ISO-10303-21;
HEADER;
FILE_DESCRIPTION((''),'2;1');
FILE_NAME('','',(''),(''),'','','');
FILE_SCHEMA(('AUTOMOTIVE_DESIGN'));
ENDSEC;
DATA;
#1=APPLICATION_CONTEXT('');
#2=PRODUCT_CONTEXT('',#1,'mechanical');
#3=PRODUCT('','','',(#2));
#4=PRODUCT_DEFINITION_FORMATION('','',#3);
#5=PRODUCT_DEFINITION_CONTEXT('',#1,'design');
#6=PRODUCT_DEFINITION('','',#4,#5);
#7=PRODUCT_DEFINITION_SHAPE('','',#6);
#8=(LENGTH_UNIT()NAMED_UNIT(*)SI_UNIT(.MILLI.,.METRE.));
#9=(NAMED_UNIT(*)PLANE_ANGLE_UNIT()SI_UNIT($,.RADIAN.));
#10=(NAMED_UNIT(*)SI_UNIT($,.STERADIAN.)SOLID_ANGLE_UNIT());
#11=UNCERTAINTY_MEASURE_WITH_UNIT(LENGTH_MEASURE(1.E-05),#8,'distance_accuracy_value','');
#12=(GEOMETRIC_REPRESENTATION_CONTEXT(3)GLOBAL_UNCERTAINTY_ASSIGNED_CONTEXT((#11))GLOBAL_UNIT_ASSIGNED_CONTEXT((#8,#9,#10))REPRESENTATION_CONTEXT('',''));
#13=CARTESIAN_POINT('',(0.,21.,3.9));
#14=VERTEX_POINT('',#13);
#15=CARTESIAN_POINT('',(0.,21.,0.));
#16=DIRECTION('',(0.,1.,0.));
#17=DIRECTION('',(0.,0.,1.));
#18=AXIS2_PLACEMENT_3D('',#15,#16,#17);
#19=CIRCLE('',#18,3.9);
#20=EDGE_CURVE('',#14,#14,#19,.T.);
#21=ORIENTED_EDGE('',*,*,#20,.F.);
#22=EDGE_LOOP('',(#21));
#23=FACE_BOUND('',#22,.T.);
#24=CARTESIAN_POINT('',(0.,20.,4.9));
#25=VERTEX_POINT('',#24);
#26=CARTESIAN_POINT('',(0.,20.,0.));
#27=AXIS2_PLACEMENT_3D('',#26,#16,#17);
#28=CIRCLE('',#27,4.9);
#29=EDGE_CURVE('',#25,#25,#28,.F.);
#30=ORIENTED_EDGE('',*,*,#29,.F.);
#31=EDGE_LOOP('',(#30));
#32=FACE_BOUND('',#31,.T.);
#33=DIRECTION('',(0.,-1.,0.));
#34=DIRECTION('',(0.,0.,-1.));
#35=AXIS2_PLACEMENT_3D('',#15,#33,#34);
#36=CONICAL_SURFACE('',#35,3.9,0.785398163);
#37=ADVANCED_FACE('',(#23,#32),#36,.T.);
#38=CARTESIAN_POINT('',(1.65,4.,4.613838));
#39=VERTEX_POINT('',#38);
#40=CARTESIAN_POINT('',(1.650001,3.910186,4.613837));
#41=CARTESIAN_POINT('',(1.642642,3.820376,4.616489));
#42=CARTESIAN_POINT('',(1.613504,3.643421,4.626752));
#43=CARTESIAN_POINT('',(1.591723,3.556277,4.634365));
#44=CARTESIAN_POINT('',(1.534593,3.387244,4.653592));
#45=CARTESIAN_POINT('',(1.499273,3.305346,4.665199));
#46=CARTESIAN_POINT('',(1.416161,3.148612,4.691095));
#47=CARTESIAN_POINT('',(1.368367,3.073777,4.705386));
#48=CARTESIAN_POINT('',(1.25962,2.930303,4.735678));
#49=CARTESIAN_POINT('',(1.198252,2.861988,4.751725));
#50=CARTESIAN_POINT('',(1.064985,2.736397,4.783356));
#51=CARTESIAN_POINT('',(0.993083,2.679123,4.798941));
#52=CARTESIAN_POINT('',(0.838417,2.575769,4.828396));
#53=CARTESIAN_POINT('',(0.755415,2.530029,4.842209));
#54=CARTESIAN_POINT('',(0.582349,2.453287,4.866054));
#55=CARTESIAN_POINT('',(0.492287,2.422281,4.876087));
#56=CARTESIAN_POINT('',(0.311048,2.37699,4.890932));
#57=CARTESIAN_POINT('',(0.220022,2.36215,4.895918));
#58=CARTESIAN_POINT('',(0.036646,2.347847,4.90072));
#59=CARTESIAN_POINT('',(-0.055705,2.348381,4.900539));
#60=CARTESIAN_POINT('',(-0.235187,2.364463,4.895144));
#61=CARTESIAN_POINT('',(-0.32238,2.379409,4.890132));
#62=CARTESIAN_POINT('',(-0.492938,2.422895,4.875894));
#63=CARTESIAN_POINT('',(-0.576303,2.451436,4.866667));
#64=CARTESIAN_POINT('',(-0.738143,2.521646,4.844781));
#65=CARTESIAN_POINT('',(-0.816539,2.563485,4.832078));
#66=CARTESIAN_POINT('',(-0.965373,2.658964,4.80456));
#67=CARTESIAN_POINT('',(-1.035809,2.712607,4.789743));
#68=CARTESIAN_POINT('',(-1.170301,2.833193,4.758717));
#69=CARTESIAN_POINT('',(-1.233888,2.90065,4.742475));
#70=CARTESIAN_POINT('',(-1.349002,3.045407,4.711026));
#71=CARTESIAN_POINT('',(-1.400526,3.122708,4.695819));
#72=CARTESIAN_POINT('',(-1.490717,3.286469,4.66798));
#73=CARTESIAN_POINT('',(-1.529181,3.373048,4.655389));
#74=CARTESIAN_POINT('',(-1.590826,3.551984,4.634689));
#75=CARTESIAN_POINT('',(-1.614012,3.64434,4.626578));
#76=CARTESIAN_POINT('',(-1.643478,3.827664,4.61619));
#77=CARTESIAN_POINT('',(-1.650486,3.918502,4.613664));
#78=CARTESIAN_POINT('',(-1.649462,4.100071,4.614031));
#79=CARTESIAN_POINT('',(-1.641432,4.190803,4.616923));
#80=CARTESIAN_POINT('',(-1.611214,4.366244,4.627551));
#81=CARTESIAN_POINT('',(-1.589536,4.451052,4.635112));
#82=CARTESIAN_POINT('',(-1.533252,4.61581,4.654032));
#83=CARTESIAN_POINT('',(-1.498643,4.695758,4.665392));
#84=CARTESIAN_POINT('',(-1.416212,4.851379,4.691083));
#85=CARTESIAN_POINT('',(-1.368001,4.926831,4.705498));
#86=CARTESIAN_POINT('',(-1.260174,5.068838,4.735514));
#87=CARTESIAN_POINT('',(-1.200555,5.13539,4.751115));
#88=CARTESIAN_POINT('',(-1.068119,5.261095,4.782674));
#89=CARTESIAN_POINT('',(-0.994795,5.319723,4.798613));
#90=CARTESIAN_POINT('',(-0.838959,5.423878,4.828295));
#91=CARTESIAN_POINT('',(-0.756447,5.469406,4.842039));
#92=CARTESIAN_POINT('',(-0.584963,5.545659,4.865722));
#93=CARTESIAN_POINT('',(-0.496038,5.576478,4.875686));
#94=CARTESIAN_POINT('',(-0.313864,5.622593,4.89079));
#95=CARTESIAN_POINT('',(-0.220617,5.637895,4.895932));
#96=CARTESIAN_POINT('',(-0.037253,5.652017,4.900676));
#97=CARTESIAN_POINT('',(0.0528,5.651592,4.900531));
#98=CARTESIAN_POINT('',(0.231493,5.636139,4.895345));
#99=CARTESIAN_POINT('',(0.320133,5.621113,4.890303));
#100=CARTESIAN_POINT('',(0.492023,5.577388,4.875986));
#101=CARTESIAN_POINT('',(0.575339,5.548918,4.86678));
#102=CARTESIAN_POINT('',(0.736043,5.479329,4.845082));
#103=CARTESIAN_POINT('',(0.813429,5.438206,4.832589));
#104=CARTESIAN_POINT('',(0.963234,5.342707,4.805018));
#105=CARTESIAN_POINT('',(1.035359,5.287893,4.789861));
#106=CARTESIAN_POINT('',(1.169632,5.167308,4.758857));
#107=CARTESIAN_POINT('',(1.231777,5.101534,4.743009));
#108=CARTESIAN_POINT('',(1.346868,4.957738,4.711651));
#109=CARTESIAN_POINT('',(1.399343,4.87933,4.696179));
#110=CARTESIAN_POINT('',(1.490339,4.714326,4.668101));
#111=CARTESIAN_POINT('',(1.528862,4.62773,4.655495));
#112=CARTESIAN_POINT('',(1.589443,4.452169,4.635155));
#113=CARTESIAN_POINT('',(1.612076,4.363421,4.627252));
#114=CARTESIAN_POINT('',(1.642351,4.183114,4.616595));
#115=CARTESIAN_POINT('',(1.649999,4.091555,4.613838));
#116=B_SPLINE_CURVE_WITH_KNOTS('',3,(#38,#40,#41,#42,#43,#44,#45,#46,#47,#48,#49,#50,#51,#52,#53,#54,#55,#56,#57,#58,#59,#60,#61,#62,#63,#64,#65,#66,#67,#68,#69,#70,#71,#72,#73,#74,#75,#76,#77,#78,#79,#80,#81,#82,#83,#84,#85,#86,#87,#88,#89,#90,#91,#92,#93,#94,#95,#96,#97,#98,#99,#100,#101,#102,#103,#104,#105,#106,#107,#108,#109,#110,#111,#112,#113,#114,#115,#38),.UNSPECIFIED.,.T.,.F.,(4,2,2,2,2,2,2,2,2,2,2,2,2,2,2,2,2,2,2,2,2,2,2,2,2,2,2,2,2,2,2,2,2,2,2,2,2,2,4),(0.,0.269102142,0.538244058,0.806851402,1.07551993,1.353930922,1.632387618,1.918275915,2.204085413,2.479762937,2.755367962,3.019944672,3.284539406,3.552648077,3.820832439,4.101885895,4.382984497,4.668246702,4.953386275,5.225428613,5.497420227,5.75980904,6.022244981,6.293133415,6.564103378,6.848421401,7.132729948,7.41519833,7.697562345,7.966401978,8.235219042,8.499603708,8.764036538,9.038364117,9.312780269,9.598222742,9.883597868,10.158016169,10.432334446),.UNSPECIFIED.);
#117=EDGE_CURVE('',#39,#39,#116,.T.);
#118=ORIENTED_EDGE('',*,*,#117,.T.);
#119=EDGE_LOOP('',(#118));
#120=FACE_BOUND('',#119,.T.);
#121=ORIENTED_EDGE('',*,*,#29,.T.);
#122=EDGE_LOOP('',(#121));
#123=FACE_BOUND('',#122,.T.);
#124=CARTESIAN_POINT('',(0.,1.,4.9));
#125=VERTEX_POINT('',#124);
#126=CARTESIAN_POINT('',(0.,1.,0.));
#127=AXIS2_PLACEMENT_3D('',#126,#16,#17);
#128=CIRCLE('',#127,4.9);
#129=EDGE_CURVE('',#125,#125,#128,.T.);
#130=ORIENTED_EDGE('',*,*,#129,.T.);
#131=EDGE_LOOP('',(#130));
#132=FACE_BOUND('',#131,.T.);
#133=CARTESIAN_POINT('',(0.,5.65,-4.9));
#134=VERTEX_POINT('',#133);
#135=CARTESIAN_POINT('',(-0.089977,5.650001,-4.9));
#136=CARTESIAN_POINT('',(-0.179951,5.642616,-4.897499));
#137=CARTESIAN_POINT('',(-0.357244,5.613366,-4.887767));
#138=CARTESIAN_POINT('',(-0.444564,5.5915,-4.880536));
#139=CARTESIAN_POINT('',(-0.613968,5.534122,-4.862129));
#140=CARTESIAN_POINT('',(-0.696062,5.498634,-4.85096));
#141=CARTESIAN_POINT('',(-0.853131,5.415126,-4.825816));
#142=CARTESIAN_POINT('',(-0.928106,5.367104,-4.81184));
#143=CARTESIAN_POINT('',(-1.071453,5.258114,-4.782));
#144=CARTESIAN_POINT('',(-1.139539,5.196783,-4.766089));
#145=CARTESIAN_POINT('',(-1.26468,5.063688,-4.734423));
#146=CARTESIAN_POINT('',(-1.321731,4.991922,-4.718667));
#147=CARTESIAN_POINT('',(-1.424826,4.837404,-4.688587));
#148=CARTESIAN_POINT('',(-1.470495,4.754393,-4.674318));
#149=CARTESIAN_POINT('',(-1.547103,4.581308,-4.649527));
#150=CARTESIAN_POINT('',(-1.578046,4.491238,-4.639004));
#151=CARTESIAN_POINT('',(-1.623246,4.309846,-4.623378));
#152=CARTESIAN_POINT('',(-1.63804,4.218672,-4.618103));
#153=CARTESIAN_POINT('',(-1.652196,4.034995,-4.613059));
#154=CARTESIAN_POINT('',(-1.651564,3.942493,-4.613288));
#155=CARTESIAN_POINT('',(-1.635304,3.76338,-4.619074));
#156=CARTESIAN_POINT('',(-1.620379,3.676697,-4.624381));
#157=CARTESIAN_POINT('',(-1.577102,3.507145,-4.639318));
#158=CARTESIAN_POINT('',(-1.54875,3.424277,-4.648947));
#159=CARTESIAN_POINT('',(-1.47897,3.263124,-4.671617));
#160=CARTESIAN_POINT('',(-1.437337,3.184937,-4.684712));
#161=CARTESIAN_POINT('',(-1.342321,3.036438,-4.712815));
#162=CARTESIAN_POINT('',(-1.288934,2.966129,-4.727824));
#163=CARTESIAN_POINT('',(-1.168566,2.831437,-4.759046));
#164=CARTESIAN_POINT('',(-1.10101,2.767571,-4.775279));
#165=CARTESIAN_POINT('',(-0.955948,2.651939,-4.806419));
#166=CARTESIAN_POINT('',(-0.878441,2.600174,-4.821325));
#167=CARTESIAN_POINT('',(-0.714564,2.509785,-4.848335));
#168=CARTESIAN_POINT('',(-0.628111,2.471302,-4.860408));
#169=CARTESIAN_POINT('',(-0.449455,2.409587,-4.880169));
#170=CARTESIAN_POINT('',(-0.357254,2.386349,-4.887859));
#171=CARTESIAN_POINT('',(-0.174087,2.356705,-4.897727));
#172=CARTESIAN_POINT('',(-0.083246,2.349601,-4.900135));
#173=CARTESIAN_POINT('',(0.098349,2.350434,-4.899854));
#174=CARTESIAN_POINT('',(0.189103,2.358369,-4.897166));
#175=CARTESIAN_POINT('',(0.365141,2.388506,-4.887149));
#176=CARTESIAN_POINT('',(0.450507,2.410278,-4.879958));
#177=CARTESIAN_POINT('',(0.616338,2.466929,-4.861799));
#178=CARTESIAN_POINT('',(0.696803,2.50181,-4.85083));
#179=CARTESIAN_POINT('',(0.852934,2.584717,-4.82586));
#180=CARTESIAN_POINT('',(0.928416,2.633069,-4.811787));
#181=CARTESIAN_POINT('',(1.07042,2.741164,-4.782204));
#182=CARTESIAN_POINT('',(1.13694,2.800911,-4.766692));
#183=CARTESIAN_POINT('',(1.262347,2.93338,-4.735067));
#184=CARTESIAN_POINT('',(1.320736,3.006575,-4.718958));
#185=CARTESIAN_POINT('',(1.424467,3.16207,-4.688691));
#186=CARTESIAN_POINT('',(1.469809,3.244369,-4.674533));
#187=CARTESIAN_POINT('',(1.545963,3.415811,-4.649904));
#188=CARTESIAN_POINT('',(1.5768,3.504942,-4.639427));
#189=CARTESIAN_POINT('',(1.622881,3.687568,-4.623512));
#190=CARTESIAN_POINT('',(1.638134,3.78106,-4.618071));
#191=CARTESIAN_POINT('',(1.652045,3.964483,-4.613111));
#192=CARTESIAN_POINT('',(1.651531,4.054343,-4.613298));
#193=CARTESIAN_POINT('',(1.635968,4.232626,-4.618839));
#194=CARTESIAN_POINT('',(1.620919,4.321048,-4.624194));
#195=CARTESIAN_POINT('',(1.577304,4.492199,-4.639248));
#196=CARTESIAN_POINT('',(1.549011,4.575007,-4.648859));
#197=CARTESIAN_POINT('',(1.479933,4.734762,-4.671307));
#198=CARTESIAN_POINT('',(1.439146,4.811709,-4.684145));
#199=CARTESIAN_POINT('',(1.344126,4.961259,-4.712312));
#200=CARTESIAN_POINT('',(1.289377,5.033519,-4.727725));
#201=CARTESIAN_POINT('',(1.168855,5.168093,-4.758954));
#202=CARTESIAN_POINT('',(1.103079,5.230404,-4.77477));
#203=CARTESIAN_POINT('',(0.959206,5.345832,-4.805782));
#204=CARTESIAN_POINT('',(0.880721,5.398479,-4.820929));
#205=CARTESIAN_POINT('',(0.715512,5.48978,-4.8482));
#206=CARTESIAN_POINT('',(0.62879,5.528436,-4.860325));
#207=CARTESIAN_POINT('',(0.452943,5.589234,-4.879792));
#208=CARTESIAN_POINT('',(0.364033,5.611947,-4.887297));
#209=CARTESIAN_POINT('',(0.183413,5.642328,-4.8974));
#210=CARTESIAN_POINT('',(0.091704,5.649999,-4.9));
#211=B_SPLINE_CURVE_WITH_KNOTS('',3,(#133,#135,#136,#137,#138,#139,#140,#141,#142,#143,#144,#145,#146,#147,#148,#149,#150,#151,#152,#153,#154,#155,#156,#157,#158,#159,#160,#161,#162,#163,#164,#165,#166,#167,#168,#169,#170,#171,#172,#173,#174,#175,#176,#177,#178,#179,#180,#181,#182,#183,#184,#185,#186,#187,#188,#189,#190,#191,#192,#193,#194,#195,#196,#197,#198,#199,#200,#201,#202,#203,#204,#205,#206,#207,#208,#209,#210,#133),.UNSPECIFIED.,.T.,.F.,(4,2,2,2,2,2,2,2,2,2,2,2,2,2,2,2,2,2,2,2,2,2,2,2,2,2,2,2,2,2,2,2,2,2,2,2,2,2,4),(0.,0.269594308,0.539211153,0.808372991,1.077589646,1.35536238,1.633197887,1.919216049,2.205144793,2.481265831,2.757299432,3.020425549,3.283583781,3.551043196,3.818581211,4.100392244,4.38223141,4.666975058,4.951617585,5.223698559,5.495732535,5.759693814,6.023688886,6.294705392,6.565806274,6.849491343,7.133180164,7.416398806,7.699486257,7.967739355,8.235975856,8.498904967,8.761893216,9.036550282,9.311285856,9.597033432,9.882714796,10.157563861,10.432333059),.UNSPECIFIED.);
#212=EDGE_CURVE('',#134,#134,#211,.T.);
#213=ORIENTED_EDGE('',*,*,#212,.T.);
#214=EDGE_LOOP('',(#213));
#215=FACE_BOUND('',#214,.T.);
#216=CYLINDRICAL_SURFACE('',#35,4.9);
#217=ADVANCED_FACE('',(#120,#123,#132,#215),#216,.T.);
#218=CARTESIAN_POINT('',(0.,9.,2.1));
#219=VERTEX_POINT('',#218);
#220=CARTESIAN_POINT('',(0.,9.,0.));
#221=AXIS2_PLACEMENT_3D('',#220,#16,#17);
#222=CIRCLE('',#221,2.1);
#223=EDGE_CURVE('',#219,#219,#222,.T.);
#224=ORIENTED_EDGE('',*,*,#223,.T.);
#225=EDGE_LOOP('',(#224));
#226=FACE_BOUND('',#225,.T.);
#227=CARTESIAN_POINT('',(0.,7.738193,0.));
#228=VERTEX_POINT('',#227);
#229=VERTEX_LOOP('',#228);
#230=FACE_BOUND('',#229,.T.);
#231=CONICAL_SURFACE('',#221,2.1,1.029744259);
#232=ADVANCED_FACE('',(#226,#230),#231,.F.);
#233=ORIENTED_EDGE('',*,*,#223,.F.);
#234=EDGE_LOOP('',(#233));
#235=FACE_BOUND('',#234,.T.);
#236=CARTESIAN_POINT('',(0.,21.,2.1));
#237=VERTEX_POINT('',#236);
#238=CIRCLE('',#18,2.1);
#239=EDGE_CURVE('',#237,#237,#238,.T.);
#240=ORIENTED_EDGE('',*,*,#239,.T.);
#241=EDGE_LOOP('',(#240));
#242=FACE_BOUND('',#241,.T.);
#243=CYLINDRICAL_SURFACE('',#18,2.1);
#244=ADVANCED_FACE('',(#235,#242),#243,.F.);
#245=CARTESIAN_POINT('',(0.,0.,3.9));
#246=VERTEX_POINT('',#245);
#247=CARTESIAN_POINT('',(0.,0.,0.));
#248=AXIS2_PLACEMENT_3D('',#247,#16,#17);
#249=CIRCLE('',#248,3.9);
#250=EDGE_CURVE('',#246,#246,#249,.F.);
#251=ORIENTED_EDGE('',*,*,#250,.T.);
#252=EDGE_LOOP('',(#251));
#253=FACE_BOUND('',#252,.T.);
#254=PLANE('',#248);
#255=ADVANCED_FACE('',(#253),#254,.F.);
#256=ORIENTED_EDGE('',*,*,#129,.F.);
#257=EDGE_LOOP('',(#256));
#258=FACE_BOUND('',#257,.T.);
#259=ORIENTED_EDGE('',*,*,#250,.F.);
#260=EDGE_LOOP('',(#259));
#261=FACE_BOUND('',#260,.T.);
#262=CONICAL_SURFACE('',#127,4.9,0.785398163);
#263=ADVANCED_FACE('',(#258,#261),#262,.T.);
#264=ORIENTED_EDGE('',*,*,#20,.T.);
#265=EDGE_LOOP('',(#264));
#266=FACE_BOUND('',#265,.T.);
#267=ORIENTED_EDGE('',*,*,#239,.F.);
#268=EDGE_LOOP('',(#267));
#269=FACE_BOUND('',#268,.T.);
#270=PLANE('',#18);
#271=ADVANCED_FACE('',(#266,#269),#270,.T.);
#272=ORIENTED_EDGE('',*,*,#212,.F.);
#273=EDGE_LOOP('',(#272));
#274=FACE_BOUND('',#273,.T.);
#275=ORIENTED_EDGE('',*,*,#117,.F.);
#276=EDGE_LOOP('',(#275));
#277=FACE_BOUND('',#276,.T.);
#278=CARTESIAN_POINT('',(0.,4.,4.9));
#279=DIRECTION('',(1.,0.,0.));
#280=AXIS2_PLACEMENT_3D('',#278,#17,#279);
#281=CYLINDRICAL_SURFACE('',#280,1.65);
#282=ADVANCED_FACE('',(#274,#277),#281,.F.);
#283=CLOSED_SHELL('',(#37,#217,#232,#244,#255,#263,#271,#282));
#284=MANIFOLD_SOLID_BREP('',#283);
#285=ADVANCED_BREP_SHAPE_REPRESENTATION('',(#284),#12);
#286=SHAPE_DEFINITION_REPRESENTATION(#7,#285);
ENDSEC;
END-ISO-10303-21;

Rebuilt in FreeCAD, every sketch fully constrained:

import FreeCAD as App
import Part
import Sketcher

V = App.Vector
Q = App.Units.Quantity


def edges_at(feature, points):
    """Names of the edges that pass closest to the given points."""
    edges = feature.Shape.Edges
    near = lambda p: min(range(len(edges)), key=lambda i: edges[i].distToShape(Part.Vertex(*p))[0])
    return sorted({f"Edge{near(p) + 1}" for p in points})

doc = App.newDocument("Part")
body = doc.addObject("PartDesign::Body", "Body")

# Sketch on XZ plane
sketch1 = body.newObject("Sketcher::SketchObject", "Sketch")
sketch1.AttachmentSupport = (doc.getObject("XZ_Plane"), [""])
sketch1.MapMode = "FlatFace"
sketch1.addGeometry(Part.Circle(V(0, 0, 0), V(0, 0, 1), 4.9), False)
sketch1.addConstraint([
    Sketcher.Constraint("Coincident", 0, 3, -1, 1),
    Sketcher.Constraint("Diameter", 0, Q("9.8 mm")),
])
pad1 = body.newObject("PartDesign::Pad", "Pad")
pad1.Profile = sketch1
pad1.Length = 21
pad1.Reversed = True

# Sketch on XY plane
sketch2 = body.newObject("Sketcher::SketchObject", "Sketch001")
sketch2.AttachmentSupport = (doc.getObject("XY_Plane"), [""])
sketch2.MapMode = "FlatFace"
sketch2.AttachmentOffset = App.Placement(V(0, 0, 4.9), App.Rotation())
sketch2.addGeometry(Part.Circle(V(0, 4, 0), V(0, 0, 1), 1.6), False)
sketch2.addConstraint([
    Sketcher.Constraint("PointOnObject", 0, 3, -2),
    Sketcher.Constraint("Diameter", 0, Q("3.3 mm")),
    Sketcher.Constraint("DistanceY", -1, 1, 0, 3, Q("4 mm")),
])
doc.recompute()
hole = body.newObject("PartDesign::Hole", "Hole")
hole.Profile = sketch2
hole.ThreadType = "None"
hole.Diameter = 3.3
hole.DepthType = "ThroughAll"

# Sketch on XZ plane
sketch3 = body.newObject("Sketcher::SketchObject", "Sketch002")
sketch3.AttachmentSupport = (doc.getObject("XZ_Plane"), [""])
sketch3.MapMode = "FlatFace"
sketch3.AttachmentOffset = App.Placement(V(0, 0, -21), App.Rotation())
sketch3.addGeometry(Part.Circle(V(0, 0, 0), V(0, 0, 1), 2.1), False)
sketch3.addConstraint([
    Sketcher.Constraint("Coincident", 0, 3, -1, 1),
    Sketcher.Constraint("Diameter", 0, Q("4.2 mm")),
])
doc.recompute()
hole2 = body.newObject("PartDesign::Hole", "Hole001")
hole2.Profile = sketch3
hole2.ThreadType = "None"
hole2.Diameter = 4.2
hole2.DepthType = "Dimension"
hole2.Depth = 12
hole2.DrillPoint = "Angled"
hole2.DrillPointAngle = 118
hole2.Reversed = True
doc.recompute()

chamfer = body.newObject("PartDesign::Chamfer", "Chamfer")
chamfer.Base = (hole2, edges_at(hole2, [(0, 0, 4.9), (0, 21, 4.9)]))
chamfer.Size = 1

doc.recompute()
